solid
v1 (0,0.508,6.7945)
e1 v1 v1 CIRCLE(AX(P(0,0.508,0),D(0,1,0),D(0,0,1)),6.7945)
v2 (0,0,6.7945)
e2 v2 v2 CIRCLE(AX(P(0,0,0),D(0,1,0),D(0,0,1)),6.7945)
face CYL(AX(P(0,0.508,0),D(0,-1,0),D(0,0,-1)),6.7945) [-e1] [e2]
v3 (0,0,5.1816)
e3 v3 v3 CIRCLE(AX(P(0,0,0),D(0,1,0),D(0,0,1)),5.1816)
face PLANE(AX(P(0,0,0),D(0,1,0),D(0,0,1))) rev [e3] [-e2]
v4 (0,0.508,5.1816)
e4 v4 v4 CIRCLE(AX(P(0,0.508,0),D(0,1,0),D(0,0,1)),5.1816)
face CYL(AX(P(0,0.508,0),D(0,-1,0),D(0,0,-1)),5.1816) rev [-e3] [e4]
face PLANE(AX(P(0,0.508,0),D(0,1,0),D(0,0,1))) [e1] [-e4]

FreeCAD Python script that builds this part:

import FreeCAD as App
import Part
import Sketcher
from FreeCAD import Vector
Q = App.Units.Quantity

doc = App.newDocument("Part")
body = doc.addObject("PartDesign::Body", "Body")

# Sketch on XZ plane
sketch1 = body.newObject("Sketcher::SketchObject", "Sketch")
sketch1.AttachmentSupport = (doc.getObject("XZ_Plane"), [""])
sketch1.MapMode = "FlatFace"
sketch1.addGeometry(Part.Circle(Vector(0, 0, 0), Vector(0, 0, 1), 7), False)
sketch1.addGeometry(Part.Circle(Vector(0, 0, 0), Vector(0, 0, 1), 5), False)
sketch1.addConstraint(Sketcher.Constraint("Coincident", 0, 3, -1, 1))
sketch1.addConstraint(Sketcher.Constraint("Coincident", 1, 3, -1, 1))
sketch1.addConstraint(Sketcher.Constraint("Diameter", 0, Q("0.535 in")))
sketch1.addConstraint(Sketcher.Constraint("Diameter", 1, Q("0.408 in")))
pad1 = body.newObject("PartDesign::Pad", "Pad")
pad1.Profile = sketch1
pad1.Length = Q("0.02 in")
pad1.Reversed = True

doc.recompute()
